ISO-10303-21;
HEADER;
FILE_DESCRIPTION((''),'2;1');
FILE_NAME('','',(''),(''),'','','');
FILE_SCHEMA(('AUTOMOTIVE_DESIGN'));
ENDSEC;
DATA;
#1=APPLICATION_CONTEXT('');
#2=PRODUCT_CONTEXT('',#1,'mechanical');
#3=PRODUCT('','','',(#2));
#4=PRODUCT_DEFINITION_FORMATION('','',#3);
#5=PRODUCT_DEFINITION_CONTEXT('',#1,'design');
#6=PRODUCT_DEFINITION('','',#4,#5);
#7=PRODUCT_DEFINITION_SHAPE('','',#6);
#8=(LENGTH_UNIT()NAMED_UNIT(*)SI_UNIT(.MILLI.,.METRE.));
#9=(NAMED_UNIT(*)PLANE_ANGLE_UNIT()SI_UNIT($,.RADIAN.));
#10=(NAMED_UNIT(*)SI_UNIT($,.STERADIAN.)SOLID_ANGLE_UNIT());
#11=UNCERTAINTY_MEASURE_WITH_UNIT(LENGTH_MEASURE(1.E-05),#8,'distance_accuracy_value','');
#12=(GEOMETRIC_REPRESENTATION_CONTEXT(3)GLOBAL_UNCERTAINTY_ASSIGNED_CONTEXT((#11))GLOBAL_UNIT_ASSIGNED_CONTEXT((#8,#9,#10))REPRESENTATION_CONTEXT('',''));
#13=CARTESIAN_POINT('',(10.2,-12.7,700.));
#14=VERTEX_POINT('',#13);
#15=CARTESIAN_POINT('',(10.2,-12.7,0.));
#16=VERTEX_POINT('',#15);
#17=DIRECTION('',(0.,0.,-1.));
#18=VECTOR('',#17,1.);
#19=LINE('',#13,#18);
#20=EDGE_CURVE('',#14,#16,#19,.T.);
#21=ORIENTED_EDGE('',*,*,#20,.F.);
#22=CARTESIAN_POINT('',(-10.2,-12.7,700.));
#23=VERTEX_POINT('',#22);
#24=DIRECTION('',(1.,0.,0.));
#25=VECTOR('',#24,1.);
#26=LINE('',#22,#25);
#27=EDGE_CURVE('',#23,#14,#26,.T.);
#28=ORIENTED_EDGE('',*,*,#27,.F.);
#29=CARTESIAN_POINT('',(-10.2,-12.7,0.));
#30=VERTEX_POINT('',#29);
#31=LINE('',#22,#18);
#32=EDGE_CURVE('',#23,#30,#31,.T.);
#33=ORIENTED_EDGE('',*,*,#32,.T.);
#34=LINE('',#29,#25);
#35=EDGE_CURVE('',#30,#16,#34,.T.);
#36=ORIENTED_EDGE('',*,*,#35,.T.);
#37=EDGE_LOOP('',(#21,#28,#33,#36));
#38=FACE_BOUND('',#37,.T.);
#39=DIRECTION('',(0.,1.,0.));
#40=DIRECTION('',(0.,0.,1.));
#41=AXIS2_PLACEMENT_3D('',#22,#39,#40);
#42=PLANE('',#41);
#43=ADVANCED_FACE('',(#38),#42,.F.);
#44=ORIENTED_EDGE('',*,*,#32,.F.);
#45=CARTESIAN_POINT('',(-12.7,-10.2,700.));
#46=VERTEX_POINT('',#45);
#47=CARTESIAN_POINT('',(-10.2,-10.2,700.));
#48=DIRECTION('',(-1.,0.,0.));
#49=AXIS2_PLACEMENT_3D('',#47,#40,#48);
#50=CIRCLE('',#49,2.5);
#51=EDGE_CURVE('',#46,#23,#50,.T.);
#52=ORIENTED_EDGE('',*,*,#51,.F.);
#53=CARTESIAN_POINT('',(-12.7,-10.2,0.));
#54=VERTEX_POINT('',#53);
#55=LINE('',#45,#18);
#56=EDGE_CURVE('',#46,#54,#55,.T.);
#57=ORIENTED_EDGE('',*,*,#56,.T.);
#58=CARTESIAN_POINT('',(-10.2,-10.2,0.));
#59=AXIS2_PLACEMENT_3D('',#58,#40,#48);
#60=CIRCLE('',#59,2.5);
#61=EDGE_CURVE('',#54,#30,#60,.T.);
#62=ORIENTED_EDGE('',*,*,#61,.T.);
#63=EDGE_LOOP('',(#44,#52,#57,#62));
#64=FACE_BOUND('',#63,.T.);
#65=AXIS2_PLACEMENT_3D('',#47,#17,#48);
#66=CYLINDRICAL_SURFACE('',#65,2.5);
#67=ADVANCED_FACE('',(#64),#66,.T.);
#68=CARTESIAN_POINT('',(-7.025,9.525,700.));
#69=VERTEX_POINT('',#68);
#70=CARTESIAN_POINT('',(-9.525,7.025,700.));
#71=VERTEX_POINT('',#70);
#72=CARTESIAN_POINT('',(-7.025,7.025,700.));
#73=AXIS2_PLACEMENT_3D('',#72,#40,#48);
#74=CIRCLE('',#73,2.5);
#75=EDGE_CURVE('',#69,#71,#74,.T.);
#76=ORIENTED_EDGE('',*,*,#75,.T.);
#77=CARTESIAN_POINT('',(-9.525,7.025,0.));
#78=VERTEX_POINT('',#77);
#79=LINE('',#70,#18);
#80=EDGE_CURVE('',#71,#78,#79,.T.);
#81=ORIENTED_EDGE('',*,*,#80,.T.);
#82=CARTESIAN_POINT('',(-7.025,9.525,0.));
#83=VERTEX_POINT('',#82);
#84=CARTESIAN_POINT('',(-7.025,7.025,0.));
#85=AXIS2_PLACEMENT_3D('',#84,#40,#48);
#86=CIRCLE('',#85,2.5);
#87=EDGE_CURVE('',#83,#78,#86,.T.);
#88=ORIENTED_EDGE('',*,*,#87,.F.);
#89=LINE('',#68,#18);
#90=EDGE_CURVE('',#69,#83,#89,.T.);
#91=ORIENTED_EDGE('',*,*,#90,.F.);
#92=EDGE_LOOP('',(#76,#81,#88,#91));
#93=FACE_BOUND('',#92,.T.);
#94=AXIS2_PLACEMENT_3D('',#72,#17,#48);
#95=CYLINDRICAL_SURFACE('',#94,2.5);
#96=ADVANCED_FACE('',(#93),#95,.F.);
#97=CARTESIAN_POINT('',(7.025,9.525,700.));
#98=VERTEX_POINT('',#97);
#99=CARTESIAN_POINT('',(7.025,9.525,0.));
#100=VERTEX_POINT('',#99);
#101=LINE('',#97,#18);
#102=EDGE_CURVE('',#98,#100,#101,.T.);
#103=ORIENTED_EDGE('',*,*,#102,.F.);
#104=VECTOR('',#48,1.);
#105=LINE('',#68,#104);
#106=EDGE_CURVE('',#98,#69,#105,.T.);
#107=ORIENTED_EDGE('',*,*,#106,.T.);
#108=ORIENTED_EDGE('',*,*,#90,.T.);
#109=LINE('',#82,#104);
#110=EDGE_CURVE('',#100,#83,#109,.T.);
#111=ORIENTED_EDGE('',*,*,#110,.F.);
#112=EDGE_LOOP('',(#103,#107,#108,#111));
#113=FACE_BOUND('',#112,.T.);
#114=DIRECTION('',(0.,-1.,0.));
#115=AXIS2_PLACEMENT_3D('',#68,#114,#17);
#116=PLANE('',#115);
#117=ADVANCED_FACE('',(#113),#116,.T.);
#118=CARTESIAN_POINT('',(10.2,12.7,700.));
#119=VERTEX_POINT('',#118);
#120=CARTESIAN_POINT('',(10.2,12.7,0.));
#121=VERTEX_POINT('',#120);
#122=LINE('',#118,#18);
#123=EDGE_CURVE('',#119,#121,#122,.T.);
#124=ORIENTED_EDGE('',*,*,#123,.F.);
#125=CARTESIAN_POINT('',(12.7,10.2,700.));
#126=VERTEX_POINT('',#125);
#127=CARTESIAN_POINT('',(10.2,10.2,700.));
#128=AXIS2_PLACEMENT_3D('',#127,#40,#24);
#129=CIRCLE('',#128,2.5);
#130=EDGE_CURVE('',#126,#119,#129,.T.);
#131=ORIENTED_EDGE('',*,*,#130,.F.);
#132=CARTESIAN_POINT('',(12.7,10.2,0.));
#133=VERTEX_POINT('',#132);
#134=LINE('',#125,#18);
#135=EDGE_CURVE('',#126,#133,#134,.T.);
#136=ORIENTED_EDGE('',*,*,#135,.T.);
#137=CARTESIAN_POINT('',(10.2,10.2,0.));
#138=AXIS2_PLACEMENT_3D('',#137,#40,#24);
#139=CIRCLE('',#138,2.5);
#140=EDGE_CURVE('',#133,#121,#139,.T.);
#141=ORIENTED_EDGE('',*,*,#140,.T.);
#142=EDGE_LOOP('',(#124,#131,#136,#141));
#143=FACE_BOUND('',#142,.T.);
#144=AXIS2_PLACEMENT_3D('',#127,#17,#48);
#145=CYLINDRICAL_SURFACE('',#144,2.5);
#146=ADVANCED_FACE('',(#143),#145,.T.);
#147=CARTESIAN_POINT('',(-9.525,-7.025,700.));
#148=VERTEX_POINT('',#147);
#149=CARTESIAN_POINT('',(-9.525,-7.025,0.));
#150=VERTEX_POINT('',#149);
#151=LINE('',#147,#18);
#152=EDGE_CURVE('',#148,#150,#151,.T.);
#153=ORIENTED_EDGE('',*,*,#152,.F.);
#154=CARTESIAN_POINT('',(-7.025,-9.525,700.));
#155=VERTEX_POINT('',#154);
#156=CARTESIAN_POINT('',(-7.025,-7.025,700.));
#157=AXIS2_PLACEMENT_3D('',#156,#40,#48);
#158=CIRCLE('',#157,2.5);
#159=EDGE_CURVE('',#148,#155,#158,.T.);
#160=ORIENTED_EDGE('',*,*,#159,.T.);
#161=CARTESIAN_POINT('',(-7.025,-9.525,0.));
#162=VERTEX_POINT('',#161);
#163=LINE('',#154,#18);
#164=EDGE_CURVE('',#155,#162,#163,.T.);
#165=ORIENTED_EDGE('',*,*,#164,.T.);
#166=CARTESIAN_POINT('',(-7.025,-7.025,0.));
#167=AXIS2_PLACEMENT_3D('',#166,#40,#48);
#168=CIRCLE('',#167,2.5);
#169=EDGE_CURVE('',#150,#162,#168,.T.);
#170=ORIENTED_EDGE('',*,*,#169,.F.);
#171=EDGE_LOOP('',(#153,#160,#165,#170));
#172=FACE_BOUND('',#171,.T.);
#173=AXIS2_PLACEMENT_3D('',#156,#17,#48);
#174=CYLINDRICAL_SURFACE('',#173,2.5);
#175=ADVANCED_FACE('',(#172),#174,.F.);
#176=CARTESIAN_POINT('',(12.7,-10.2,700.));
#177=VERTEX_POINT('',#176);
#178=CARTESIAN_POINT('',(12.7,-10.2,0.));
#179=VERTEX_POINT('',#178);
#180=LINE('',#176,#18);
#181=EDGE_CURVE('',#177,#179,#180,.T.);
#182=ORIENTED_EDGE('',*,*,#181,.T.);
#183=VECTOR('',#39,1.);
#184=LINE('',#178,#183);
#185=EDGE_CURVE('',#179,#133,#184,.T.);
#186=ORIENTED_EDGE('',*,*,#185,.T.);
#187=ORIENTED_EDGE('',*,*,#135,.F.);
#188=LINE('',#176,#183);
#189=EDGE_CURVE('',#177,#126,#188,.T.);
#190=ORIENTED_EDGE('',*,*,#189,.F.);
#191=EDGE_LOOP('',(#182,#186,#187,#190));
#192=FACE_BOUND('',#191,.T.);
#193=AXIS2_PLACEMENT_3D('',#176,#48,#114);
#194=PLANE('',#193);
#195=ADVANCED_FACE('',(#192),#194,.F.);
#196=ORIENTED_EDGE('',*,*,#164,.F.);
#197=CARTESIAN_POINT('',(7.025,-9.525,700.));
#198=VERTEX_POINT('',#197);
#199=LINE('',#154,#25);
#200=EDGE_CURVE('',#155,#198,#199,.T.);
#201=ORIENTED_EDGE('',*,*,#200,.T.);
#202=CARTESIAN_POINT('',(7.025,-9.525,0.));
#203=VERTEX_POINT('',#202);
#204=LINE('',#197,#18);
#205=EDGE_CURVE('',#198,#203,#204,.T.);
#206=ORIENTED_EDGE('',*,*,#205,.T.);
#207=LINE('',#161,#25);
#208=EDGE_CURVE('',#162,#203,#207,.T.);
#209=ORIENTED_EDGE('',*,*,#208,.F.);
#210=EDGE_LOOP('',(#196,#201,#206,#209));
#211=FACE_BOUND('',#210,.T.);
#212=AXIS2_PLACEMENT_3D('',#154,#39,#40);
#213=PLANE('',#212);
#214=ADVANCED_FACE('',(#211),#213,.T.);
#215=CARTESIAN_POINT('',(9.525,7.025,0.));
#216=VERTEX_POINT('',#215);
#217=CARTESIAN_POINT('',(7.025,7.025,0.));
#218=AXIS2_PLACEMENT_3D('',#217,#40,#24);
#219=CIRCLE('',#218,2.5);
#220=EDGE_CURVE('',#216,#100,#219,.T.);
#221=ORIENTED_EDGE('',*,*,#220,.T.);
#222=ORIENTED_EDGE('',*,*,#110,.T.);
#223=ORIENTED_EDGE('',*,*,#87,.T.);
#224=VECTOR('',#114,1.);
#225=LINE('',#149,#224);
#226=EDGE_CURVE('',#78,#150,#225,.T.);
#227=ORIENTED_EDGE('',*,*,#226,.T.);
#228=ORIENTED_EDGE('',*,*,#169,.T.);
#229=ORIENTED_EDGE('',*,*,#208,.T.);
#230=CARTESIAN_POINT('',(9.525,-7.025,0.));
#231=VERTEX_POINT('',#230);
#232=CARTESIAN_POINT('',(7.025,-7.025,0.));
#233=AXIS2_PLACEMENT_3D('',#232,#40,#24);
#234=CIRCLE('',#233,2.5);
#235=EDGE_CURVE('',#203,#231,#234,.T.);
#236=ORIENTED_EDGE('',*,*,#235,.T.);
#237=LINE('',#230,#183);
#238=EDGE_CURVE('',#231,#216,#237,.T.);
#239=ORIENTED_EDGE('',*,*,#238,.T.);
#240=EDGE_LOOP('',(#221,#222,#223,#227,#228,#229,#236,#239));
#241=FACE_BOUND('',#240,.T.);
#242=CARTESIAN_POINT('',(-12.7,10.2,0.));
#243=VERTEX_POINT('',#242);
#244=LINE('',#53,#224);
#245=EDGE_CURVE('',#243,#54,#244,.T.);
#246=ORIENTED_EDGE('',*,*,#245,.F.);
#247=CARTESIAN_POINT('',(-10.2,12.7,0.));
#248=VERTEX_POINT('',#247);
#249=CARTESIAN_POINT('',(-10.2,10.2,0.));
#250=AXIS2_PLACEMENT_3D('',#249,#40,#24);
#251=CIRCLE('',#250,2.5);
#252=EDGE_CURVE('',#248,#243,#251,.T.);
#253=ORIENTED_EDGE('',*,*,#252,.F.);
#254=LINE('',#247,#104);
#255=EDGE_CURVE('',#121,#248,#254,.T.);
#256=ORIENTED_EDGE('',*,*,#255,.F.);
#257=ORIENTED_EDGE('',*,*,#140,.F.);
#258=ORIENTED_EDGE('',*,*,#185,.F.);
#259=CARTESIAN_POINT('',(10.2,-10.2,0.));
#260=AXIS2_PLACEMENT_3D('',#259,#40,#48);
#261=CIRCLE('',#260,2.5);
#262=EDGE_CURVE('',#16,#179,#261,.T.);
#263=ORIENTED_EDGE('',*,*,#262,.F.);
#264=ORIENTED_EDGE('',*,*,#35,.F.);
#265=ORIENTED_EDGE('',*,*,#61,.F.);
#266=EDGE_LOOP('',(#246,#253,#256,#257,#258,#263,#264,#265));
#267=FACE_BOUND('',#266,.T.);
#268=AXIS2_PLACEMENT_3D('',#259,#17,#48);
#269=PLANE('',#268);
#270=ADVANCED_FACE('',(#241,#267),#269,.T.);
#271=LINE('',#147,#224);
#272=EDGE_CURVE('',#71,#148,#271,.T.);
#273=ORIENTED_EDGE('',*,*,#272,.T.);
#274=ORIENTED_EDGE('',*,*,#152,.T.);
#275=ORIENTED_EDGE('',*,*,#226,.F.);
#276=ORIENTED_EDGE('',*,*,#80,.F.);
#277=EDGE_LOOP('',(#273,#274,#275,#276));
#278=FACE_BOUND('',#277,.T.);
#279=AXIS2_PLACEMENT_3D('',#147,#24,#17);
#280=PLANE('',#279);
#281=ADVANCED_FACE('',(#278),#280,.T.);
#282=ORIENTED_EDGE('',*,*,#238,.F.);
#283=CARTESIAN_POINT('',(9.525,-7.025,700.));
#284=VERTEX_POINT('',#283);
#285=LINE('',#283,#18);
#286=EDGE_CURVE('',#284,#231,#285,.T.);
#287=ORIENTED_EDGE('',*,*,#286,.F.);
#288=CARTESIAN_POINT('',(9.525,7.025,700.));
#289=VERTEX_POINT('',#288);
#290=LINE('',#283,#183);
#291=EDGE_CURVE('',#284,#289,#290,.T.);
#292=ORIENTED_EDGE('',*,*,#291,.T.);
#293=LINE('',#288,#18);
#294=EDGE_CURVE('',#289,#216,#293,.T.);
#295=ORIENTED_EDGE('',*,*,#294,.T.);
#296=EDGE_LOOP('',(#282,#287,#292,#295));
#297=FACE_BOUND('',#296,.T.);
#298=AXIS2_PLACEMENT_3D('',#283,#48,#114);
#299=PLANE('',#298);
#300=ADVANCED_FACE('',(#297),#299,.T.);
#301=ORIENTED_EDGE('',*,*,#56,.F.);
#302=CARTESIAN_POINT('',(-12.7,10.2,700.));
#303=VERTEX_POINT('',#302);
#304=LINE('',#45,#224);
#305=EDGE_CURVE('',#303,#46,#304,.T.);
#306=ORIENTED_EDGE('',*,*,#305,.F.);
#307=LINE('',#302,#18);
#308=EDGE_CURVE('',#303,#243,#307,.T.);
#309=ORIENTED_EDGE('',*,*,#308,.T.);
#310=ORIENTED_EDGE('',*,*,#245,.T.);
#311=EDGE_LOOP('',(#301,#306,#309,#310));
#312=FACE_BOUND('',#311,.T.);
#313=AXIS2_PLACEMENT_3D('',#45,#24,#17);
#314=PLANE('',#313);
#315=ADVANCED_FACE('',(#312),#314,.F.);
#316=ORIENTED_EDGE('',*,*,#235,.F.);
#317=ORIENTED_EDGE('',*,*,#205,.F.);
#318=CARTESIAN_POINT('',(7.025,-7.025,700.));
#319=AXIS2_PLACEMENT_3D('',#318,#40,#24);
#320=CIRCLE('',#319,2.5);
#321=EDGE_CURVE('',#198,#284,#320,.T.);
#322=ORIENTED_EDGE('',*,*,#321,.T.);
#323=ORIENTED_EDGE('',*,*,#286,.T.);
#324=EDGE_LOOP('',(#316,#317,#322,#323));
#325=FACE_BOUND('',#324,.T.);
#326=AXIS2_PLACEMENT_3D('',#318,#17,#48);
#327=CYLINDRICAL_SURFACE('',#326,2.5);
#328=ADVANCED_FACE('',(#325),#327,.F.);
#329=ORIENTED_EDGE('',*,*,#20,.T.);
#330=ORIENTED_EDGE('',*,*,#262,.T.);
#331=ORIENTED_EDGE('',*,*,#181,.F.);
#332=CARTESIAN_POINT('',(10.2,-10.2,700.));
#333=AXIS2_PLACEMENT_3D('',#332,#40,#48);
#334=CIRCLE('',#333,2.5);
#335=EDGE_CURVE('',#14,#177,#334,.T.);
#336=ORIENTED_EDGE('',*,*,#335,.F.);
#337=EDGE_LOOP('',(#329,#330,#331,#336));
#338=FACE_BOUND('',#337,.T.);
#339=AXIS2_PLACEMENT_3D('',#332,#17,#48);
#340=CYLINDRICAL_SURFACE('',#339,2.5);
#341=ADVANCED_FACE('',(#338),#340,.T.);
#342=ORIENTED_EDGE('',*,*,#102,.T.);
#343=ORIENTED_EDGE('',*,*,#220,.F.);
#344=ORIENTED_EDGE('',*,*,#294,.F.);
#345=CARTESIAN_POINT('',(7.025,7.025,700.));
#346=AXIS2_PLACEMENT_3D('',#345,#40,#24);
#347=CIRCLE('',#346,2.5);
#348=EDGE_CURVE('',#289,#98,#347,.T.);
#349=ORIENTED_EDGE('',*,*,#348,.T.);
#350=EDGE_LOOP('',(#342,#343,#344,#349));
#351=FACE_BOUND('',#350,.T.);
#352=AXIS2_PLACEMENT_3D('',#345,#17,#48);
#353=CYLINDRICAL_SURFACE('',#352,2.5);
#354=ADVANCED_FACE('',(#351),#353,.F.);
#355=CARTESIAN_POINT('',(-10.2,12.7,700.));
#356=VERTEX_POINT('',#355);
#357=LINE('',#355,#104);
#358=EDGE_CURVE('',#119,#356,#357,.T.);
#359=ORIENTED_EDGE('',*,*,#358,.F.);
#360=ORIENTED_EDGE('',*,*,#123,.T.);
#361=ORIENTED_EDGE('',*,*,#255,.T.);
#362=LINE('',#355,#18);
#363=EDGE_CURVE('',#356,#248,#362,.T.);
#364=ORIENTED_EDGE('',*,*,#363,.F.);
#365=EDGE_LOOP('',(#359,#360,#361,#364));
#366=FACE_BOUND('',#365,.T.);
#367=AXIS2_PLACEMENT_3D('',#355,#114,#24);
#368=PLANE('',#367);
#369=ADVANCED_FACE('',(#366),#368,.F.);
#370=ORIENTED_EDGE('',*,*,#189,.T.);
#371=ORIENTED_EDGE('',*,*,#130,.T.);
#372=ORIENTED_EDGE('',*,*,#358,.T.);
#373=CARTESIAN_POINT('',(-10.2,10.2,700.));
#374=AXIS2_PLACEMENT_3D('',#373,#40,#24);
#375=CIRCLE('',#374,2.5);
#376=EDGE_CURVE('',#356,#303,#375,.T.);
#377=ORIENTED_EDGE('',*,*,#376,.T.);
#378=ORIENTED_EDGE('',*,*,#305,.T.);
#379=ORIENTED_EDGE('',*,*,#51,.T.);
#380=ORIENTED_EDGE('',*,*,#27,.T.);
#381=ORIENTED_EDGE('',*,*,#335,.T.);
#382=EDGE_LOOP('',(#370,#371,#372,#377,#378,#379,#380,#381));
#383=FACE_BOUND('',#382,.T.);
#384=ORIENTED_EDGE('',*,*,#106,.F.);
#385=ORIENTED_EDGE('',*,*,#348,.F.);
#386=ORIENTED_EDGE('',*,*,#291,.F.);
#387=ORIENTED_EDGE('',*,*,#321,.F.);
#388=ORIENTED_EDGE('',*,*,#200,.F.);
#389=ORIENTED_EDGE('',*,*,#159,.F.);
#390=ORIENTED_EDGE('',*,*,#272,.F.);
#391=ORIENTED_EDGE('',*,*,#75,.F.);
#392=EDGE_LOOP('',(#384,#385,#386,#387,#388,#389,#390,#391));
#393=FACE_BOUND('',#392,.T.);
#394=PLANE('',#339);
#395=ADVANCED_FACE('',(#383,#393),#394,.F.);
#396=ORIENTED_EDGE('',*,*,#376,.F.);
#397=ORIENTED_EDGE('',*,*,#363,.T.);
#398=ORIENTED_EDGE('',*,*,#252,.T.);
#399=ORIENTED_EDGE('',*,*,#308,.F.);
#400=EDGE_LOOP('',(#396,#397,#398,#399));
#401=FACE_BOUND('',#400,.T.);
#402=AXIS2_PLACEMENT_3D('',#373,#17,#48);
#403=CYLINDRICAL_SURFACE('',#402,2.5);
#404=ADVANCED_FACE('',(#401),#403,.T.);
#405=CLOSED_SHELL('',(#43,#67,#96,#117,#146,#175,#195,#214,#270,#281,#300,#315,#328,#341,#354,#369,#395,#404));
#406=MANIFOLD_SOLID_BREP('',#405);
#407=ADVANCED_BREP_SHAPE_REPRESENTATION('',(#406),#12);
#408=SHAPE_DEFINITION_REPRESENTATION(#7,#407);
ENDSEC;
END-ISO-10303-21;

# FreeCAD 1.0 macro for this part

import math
import FreeCAD as App
import Part
import Sketcher
Q = App.Units.Quantity

doc = App.newDocument("Part")
body = doc.addObject("PartDesign::Body", "Body")

# Sketch on XY plane
sketch1 = body.newObject("Sketcher::SketchObject", "Sketch")
sketch1.AttachmentSupport = (doc.getObject("XY_Plane"), [""])
sketch1.MapMode = "FlatFace"
sketch1.addGeometry([
    Part.LineSegment(App.Vector(-10.2, -12.7, 0), App.Vector(10.2, -12.7, 0)),  # 0
    Part.ArcOfCircle(Part.Circle(App.Vector(10.2, -10.2, 0), App.Vector(0, 0, 1), 2.5), math.radians(-90), math.radians(0)),  # 1
    Part.LineSegment(App.Vector(12.7, -10.2, 0), App.Vector(12.7, 10.2, 0)),  # 2
    Part.ArcOfCircle(Part.Circle(App.Vector(10.2, 10.2, 0), App.Vector(0, 0, 1), 2.5), math.radians(0), math.radians(90)),  # 3
    Part.LineSegment(App.Vector(10.2, 12.7, 0), App.Vector(-10.2, 12.7, 0)),  # 4
    Part.ArcOfCircle(Part.Circle(App.Vector(-10.2, 10.2, 0), App.Vector(0, 0, 1), 2.5), math.radians(90), math.radians(180)),  # 5
    Part.LineSegment(App.Vector(-12.7, 10.2, 0), App.Vector(-12.7, -10.2, 0)),  # 6
    Part.ArcOfCircle(Part.Circle(App.Vector(-10.2, -10.2, 0), App.Vector(0, 0, 1), 2.5), math.radians(180), math.radians(270)),  # 7
    Part.LineSegment(App.Vector(7.025, -9.525, 0), App.Vector(-7.025, -9.525, 0)),  # 8
    Part.ArcOfCircle(Part.Circle(App.Vector(-7.025, -7.025, 0), App.Vector(0, 0, 1), 2.5), math.radians(180), math.radians(270)),  # 9
    Part.LineSegment(App.Vector(-9.525, -7.025, 0), App.Vector(-9.525, 7.025, 0)),  # 10
    Part.ArcOfCircle(Part.Circle(App.Vector(-7.025, 7.025, 0), App.Vector(0, 0, 1), 2.5), math.radians(90), math.radians(180)),  # 11
    Part.LineSegment(App.Vector(-7.025, 9.525, 0), App.Vector(7.025, 9.525, 0)),  # 12
    Part.ArcOfCircle(Part.Circle(App.Vector(7.025, 7.025, 0), App.Vector(0, 0, 1), 2.5), math.radians(0), math.radians(90)),  # 13
    Part.LineSegment(App.Vector(9.525, 7.025, 0), App.Vector(9.525, -7.025, 0)),  # 14
    Part.ArcOfCircle(Part.Circle(App.Vector(7.025, -7.025, 0), App.Vector(0, 0, 1), 2.5), math.radians(-90), math.radians(0)),  # 15
], False)
sketch1.addConstraint([
    Sketcher.Constraint("Tangent", 0, 2, 1, 1),
    Sketcher.Constraint("Tangent", 1, 2, 2, 1),
    Sketcher.Constraint("Tangent", 2, 2, 3, 1),
    Sketcher.Constraint("Tangent", 3, 2, 4, 1),
    Sketcher.Constraint("Tangent", 4, 2, 5, 1),
    Sketcher.Constraint("Tangent", 5, 2, 6, 1),
    Sketcher.Constraint("Tangent", 6, 2, 7, 1),
    Sketcher.Constraint("Tangent", 7, 2, 0, 1),
    Sketcher.Constraint("Tangent", 8, 2, 9, 2),
    Sketcher.Constraint("Tangent", 9, 1, 10, 1),
    Sketcher.Constraint("Tangent", 10, 2, 11, 2),
    Sketcher.Constraint("Tangent", 11, 1, 12, 1),
    Sketcher.Constraint("Tangent", 12, 2, 13, 2),
    Sketcher.Constraint("Tangent", 13, 1, 14, 1),
    Sketcher.Constraint("Tangent", 14, 2, 15, 2),
    Sketcher.Constraint("Tangent", 15, 1, 8, 1),
    Sketcher.Constraint("Horizontal", 0),
    Sketcher.Constraint("Vertical", 2),
    Sketcher.Constraint("Horizontal", 4),
    Sketcher.Constraint("Vertical", 6),
    Sketcher.Constraint("Horizontal", 8),
    Sketcher.Constraint("Vertical", 10),
    Sketcher.Constraint("Horizontal", 12),
    Sketcher.Constraint("Vertical", 14),
    Sketcher.Constraint("Equal", 1, 3),
    Sketcher.Constraint("Equal", 3, 5),
    Sketcher.Constraint("Equal", 5, 7),
    Sketcher.Constraint("Equal", 7, 9),
    Sketcher.Constraint("Equal", 9, 11),
    Sketcher.Constraint("Equal", 11, 13),
    Sketcher.Constraint("Equal", 13, 15),
    Sketcher.Constraint("Symmetric", 1, 3, 5, 3, -1, 1),
    Sketcher.Constraint("Symmetric", 9, 3, 13, 3, -1, 1),
    Sketcher.Constraint("Equal", 4, 2),
    Sketcher.Constraint("Equal", 12, 10),
    Sketcher.Constraint("Radius", 1, Q("2.5 mm")),
    Sketcher.Constraint("DistanceX", 0, 1, 0, 2, Q("20.4 mm")),
    Sketcher.Constraint("DistanceX", 8, 2, 8, 1, Q("14.05 mm")),
])
pad1 = body.newObject("PartDesign::Pad", "Pad")
pad1.Profile = sketch1
pad1.Length = 700

doc.recompute()
